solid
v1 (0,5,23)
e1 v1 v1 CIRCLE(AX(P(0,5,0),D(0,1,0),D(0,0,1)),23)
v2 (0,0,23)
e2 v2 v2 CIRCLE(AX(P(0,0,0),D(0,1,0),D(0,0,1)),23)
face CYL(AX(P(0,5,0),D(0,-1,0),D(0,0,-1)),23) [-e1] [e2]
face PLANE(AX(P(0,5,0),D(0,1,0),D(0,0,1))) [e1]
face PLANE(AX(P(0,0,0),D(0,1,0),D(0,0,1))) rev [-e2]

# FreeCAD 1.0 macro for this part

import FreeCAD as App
import Part
import Sketcher

V = App.Vector

doc = App.newDocument("Part")
body = doc.addObject("PartDesign::Body", "Body")

# Sketch on XZ plane
sketch1 = body.newObject("Sketcher::SketchObject", "Sketch")
sketch1.AttachmentSupport = (doc.getObject("XZ_Plane"), [""])
sketch1.MapMode = "FlatFace"
sketch1.addGeometry(Part.Circle(V(0, 0, 0), V(0, 0, 1), 23), False)
sketch1.addConstraint(Sketcher.Constraint("Coincident", 0, 3, -1, 1))
sketch1.addConstraint(Sketcher.Constraint("Diameter", 0, 46.0))
pad1 = body.newObject("PartDesign::Pad", "Pad")
pad1.Profile = sketch1
pad1.Length = 5
pad1.Reversed = True

doc.recompute()
